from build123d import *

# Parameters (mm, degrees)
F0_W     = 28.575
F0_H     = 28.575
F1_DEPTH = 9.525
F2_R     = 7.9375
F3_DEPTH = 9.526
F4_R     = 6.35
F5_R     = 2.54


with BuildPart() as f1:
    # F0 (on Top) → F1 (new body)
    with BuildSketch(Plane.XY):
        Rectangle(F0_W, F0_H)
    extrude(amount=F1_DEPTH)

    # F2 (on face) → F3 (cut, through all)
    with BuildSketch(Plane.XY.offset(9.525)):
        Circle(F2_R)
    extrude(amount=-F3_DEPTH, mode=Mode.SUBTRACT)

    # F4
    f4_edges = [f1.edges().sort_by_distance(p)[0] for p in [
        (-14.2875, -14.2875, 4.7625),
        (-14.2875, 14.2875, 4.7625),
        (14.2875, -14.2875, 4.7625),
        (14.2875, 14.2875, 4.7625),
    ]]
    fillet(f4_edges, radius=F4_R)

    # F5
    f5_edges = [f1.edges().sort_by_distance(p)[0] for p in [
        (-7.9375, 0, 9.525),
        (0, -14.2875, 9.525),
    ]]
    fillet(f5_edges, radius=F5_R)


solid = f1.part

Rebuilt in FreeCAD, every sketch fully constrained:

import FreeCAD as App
import Part
import Sketcher
from FreeCAD import Vector
Q = App.Units.Quantity


def edges_at(feature, points):
    """Names of the edges that pass closest to the given points."""
    edges = feature.Shape.Edges
    near = lambda p: min(range(len(edges)), key=lambda i: edges[i].distToShape(Part.Vertex(*p))[0])
    return sorted({f"Edge{near(p) + 1}" for p in points})

doc = App.newDocument("Part")
body = doc.addObject("PartDesign::Body", "Body")

# Sketch on XY plane
sketch1 = body.newObject("Sketcher::SketchObject", "Sketch")
sketch1.AttachmentSupport = (doc.getObject("XY_Plane"), [""])
sketch1.MapMode = "FlatFace"
sketch1.addGeometry(Part.LineSegment(Vector(-14.2875, 14.2875, 0), Vector(-14.2875, -14.2875, 0)), False)
sketch1.addGeometry(Part.LineSegment(Vector(-14.2875, -14.2875, 0), Vector(14.2875, -14.2875, 0)), False)
sketch1.addGeometry(Part.LineSegment(Vector(14.2875, -14.2875, 0), Vector(14.2875, 14.2875, 0)), False)
sketch1.addGeometry(Part.LineSegment(Vector(14.2875, 14.2875, 0), Vector(-14.2875, 14.2875, 0)), False)
sketch1.addConstraint(Sketcher.Constraint("Coincident", 0, 2, 1, 1))
sketch1.addConstraint(Sketcher.Constraint("Coincident", 1, 2, 2, 1))
sketch1.addConstraint(Sketcher.Constraint("Coincident", 2, 2, 3, 1))
sketch1.addConstraint(Sketcher.Constraint("Coincident", 3, 2, 0, 1))
sketch1.addConstraint(Sketcher.Constraint("Vertical", 0))
sketch1.addConstraint(Sketcher.Constraint("Horizontal", 1))
sketch1.addConstraint(Sketcher.Constraint("Vertical", 2))
sketch1.addConstraint(Sketcher.Constraint("Horizontal", 3))
sketch1.addConstraint(Sketcher.Constraint("Symmetric", 0, 2, 2, 2, -1, 1))
sketch1.addConstraint(Sketcher.Constraint("Equal", 3, 0))
sketch1.addConstraint(Sketcher.Constraint("DistanceX", 1, 1, 1, 2, Q("1.125 in")))
pad1 = body.newObject("PartDesign::Pad", "Pad")
pad1.Profile = sketch1
pad1.Length = Q("0.375 in")

# Sketch on XY plane
sketch2 = body.newObject("Sketcher::SketchObject", "Sketch001")
sketch2.AttachmentSupport = (doc.getObject("XY_Plane"), [""])
sketch2.MapMode = "FlatFace"
sketch2.AttachmentOffset = App.Placement(Vector(0, 0, 0.375 * 25.4), App.Rotation())
sketch2.addGeometry(Part.Circle(Vector(0, 0, 0), Vector(0, 0, 1), 7.9375), False)
sketch2.addConstraint(Sketcher.Constraint("Coincident", 0, 3, -1, 1))
sketch2.addConstraint(Sketcher.Constraint("Diameter", 0, Q("0.625 in")))
pocket1 = body.newObject("PartDesign::Pocket", "Pocket")
pocket1.Profile = sketch2
pocket1.Type = "ThroughAll"
doc.recompute()

fillet = body.newObject("PartDesign::Fillet", "Fillet")
fillet.Base = (pocket1, edges_at(pocket1, [
    (-14.287, -14.287, 4.763),
    (-14.287, 14.287, 4.763),
    (14.287, -14.287, 4.763),
    (14.287, 14.287, 4.763),
]))
fillet.Radius = Q("0.25 in")
doc.recompute()

fillet2 = body.newObject("PartDesign::Fillet", "Fillet001")
fillet2.Base = (fillet, edges_at(fillet, [(-7.938, 0, 9.525), (0, -14.287, 9.525)]))
fillet2.Radius = Q("0.1 in")

doc.recompute()
